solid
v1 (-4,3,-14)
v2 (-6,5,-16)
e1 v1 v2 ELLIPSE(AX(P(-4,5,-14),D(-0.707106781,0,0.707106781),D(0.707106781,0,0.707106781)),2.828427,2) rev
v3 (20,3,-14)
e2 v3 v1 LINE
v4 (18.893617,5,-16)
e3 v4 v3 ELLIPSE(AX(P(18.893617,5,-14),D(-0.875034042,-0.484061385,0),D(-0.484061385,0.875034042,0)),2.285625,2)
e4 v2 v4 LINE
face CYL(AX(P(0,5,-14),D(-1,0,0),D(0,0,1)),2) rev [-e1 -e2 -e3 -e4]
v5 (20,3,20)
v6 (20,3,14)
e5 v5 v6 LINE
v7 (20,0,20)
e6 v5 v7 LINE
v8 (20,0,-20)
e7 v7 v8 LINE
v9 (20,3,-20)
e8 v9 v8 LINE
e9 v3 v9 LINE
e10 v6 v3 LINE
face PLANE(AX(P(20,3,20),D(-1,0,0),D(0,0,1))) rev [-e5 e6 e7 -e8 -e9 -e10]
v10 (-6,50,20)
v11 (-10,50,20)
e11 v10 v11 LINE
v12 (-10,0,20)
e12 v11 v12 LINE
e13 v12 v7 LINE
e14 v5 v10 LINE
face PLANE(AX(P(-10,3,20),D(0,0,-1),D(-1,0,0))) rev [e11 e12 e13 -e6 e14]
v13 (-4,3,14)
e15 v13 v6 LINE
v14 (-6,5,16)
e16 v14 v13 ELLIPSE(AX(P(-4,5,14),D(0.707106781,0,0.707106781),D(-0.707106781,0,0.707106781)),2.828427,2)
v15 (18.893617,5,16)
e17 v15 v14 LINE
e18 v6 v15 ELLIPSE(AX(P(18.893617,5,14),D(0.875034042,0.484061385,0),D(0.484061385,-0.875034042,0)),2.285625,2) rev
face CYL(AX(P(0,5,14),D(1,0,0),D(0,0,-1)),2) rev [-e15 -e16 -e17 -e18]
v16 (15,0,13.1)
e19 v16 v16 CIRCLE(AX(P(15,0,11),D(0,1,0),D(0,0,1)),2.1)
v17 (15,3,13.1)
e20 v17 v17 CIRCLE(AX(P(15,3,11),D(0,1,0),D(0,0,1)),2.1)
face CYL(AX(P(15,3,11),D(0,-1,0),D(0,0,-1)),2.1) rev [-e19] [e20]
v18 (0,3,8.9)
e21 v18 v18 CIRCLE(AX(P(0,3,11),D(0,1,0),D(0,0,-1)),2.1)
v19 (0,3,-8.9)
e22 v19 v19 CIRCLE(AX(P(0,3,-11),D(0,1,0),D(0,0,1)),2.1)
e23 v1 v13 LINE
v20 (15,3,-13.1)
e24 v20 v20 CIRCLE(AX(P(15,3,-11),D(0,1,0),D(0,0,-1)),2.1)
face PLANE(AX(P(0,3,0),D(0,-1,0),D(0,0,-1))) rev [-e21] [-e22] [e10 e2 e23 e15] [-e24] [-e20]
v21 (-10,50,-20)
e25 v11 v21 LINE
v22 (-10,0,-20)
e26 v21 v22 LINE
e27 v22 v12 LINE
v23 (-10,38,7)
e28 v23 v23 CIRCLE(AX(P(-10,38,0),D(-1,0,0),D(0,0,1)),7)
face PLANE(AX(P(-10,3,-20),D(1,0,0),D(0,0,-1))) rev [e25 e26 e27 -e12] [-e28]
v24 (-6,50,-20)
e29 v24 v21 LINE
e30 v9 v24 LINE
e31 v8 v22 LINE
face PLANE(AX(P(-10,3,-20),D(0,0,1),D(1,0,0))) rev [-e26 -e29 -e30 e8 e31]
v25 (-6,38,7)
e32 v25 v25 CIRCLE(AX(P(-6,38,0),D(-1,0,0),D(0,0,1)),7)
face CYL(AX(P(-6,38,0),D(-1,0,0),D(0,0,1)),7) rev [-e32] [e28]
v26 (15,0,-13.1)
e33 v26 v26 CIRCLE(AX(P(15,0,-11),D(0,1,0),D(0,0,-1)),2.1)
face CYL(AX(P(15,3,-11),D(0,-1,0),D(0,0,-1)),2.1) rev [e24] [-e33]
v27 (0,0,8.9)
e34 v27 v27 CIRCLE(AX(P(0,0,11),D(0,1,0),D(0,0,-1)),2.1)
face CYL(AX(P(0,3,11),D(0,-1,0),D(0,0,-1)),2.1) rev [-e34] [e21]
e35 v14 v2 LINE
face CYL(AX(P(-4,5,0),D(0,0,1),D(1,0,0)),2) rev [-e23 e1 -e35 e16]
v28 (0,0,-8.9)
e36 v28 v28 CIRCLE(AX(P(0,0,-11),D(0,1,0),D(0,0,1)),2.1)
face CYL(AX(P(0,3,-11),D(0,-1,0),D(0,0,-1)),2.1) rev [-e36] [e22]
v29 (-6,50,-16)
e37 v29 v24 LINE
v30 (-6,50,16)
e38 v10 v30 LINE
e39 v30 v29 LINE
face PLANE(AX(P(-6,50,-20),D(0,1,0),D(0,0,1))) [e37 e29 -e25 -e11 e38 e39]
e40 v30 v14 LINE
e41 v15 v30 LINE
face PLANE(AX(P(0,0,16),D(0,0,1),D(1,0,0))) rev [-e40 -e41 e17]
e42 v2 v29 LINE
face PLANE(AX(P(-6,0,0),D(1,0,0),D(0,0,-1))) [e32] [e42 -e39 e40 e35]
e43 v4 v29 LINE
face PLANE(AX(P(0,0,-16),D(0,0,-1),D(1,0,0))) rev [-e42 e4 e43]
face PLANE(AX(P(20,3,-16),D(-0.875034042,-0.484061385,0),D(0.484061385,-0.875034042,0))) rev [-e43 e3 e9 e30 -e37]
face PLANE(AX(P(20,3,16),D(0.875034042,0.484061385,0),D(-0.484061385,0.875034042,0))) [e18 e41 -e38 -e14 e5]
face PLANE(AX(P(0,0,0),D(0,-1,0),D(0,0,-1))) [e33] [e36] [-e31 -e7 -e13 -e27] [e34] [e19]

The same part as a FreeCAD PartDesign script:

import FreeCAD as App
import Part
import Sketcher
from FreeCAD import Vector
Q = App.Units.Quantity


def edges_at(feature, points):
    """Names of the edges that pass closest to the given points."""
    edges = feature.Shape.Edges
    near = lambda p: min(range(len(edges)), key=lambda i: edges[i].distToShape(Part.Vertex(*p))[0])
    return sorted({f"Edge{near(p) + 1}" for p in points})


def add_polygon(sketch, points):
    """Adds a closed chain of lines whose ends are joined by coincident constraints."""
    first, n = sketch.GeometryCount, len(points)
    for a, b in zip(points, points[1:] + points[:1]):
        sketch.addGeometry(Part.LineSegment(App.Vector(*a, 0), App.Vector(*b, 0)), False)
    for i in range(n):
        sketch.addConstraint(Sketcher.Constraint("Coincident", first + i, 2, first + (i + 1) % n, 1))

doc = App.newDocument("Part")
body = doc.addObject("PartDesign::Body", "Body")

# Sketch on XZ plane
sketch1 = doc.addObject("Sketcher::SketchObject", "Sketch")
body.addObject(sketch1)
sketch1.AttachmentSupport = (doc.XZ_Plane, [""])
sketch1.MapMode = "FlatFace"
add_polygon(sketch1, [(-10, -20), (-10, 20), (20, 20), (20, -20)])  # lines 0-3
sketch1.addGeometry(Part.Circle(Vector(0, 11, 0), Vector(0, 0, 1), 2.1), False)  # 4
sketch1.addGeometry(Part.Circle(Vector(15, 11, 0), Vector(0, 0, 1), 2.1), False)  # 5
sketch1.addGeometry(Part.Circle(Vector(0, -11, 0), Vector(0, 0, 1), 2.1), False)  # 6
sketch1.addGeometry(Part.Circle(Vector(15, -11, 0), Vector(0, 0, 1), 2.1), False)  # 7
sketch1.addConstraint(Sketcher.Constraint("Vertical", 0))
sketch1.addConstraint(Sketcher.Constraint("Horizontal", 1))
sketch1.addConstraint(Sketcher.Constraint("Vertical", 2))
sketch1.addConstraint(Sketcher.Constraint("Horizontal", 3))
sketch1.addConstraint(Sketcher.Constraint("Equal", 4, 5))
sketch1.addConstraint(Sketcher.Constraint("Equal", 5, 6))
sketch1.addConstraint(Sketcher.Constraint("Equal", 6, 7))
sketch1.addConstraint(Sketcher.Constraint("Symmetric", 4, 3, 6, 3, -1, 1))
sketch1.addConstraint(Sketcher.Constraint("Symmetric", 5, 3, 7, 3, -1))
sketch1.addConstraint(Sketcher.Constraint("PointOnObject", 4, 3, -2))
sketch1.addConstraint(Sketcher.Constraint("Horizontal", 4, 3, 5, 3))
sketch1.addConstraint(Sketcher.Constraint("Diameter", 4, Q("4.2 mm")))
sketch1.addConstraint(Sketcher.Constraint("DistanceX", 1, 1, 1, 2, Q("30 mm")))
sketch1.addConstraint(Sketcher.Constraint("DistanceY", 0, 1, 0, 2, Q("40 mm")))
sketch1.addConstraint(Sketcher.Constraint("DistanceY", -1, 1, 4, 3, Q("11 mm")))
sketch1.addConstraint(Sketcher.Constraint("DistanceX", -1, 1, 5, 3, Q("15 mm")))
sketch1.addConstraint(Sketcher.Constraint("DistanceX", 0, 2, -1, 1, Q("10 mm")))
sketch1.addConstraint(Sketcher.Constraint("DistanceY", -1, 1, 0, 2, Q("20 mm")))
pad1 = doc.addObject("PartDesign::Pad", "Pad")
body.addObject(pad1)
pad1.Profile = sketch1
pad1.Length = 3
pad1.Reversed = True

# Sketch on YZ plane
sketch2 = doc.addObject("Sketcher::SketchObject", "Sketch001")
body.addObject(sketch2)
sketch2.AttachmentSupport = (doc.YZ_Plane, [""])
sketch2.MapMode = "FlatFace"
sketch2.AttachmentOffset = App.Placement(Vector(0, 0, -10), App.Rotation())
add_polygon(sketch2, [(50, -20), (0, -20), (0, 20), (50, 20)])  # lines 0-3
sketch2.addGeometry(Part.Circle(Vector(38, 0, 0), Vector(0, 0, 1), 7), False)  # 4
sketch2.addConstraint(Sketcher.Constraint("Horizontal", 0))
sketch2.addConstraint(Sketcher.Constraint("Vertical", 1))
sketch2.addConstraint(Sketcher.Constraint("Horizontal", 2))
sketch2.addConstraint(Sketcher.Constraint("Vertical", 3))
sketch2.addConstraint(Sketcher.Constraint("Symmetric", 0, 2, 1, 2, -1, 1))
sketch2.addConstraint(Sketcher.Constraint("PointOnObject", 4, 3, -1))
sketch2.addConstraint(Sketcher.Constraint("Diameter", 4, Q("14 mm")))
sketch2.addConstraint(Sketcher.Constraint("DistanceX", 0, 2, 0, 1, Q("50 mm")))
sketch2.addConstraint(Sketcher.Constraint("DistanceY", 1, 1, 1, 2, Q("40 mm")))
sketch2.addConstraint(Sketcher.Constraint("DistanceX", -1, 1, 4, 3, Q("38 mm")))
pad2 = doc.addObject("PartDesign::Pad", "Pad001")
body.addObject(pad2)
pad2.Profile = sketch2
pad2.Length = 4

# Sketch on XY plane
sketch3 = doc.addObject("Sketcher::SketchObject", "Sketch002")
body.addObject(sketch3)
sketch3.AttachmentSupport = (doc.XY_Plane, [""])
sketch3.MapMode = "FlatFace"
sketch3.AttachmentOffset = App.Placement(Vector(0, 0, 20), App.Rotation())
add_polygon(sketch3, [(-10, 50), (-10, 0), (20, 0), (20, 3), (-6, 50)])  # lines 0-4
sketch3.addConstraint(Sketcher.Constraint("Vertical", 0))
sketch3.addConstraint(Sketcher.Constraint("Horizontal", 1))
sketch3.addConstraint(Sketcher.Constraint("Vertical", 2))
sketch3.addConstraint(Sketcher.Constraint("Horizontal", 4))
sketch3.addConstraint(Sketcher.Constraint("PointOnObject", 0, 2, -1))
sketch3.addConstraint(Sketcher.Constraint("DistanceX", 1, 1, 1, 2, Q("30 mm")))
sketch3.addConstraint(Sketcher.Constraint("DistanceX", 4, 2, 4, 1, Q("4 mm")))
sketch3.addConstraint(Sketcher.Constraint("DistanceY", 0, 2, 0, 1, Q("50 mm")))
sketch3.addConstraint(Sketcher.Constraint("DistanceY", 2, 1, 2, 2, Q("3 mm")))
sketch3.addConstraint(Sketcher.Constraint("DistanceX", 0, 2, -1, 1, Q("10 mm")))
pad3 = doc.addObject("PartDesign::Pad", "Pad002")
body.addObject(pad3)
pad3.Profile = sketch3
pad3.Length = 4
pad3.Reversed = True
doc.recompute()

mirrored = doc.addObject("PartDesign::Mirrored", "Mirrored")
body.addObject(mirrored)
mirrored.Originals = [pad3]
mirrored.MirrorPlane = (doc.XY_Plane, [""])
body.Tip = mirrored
doc.recompute()

fillet = doc.addObject("PartDesign::Fillet", "Fillet")
body.addObject(fillet)
fillet.Base = (mirrored, edges_at(mirrored, [(7, 3, 16), (-6, 3, 0), (7, 3, -16)]))
fillet.Radius = 2

doc.recompute()
